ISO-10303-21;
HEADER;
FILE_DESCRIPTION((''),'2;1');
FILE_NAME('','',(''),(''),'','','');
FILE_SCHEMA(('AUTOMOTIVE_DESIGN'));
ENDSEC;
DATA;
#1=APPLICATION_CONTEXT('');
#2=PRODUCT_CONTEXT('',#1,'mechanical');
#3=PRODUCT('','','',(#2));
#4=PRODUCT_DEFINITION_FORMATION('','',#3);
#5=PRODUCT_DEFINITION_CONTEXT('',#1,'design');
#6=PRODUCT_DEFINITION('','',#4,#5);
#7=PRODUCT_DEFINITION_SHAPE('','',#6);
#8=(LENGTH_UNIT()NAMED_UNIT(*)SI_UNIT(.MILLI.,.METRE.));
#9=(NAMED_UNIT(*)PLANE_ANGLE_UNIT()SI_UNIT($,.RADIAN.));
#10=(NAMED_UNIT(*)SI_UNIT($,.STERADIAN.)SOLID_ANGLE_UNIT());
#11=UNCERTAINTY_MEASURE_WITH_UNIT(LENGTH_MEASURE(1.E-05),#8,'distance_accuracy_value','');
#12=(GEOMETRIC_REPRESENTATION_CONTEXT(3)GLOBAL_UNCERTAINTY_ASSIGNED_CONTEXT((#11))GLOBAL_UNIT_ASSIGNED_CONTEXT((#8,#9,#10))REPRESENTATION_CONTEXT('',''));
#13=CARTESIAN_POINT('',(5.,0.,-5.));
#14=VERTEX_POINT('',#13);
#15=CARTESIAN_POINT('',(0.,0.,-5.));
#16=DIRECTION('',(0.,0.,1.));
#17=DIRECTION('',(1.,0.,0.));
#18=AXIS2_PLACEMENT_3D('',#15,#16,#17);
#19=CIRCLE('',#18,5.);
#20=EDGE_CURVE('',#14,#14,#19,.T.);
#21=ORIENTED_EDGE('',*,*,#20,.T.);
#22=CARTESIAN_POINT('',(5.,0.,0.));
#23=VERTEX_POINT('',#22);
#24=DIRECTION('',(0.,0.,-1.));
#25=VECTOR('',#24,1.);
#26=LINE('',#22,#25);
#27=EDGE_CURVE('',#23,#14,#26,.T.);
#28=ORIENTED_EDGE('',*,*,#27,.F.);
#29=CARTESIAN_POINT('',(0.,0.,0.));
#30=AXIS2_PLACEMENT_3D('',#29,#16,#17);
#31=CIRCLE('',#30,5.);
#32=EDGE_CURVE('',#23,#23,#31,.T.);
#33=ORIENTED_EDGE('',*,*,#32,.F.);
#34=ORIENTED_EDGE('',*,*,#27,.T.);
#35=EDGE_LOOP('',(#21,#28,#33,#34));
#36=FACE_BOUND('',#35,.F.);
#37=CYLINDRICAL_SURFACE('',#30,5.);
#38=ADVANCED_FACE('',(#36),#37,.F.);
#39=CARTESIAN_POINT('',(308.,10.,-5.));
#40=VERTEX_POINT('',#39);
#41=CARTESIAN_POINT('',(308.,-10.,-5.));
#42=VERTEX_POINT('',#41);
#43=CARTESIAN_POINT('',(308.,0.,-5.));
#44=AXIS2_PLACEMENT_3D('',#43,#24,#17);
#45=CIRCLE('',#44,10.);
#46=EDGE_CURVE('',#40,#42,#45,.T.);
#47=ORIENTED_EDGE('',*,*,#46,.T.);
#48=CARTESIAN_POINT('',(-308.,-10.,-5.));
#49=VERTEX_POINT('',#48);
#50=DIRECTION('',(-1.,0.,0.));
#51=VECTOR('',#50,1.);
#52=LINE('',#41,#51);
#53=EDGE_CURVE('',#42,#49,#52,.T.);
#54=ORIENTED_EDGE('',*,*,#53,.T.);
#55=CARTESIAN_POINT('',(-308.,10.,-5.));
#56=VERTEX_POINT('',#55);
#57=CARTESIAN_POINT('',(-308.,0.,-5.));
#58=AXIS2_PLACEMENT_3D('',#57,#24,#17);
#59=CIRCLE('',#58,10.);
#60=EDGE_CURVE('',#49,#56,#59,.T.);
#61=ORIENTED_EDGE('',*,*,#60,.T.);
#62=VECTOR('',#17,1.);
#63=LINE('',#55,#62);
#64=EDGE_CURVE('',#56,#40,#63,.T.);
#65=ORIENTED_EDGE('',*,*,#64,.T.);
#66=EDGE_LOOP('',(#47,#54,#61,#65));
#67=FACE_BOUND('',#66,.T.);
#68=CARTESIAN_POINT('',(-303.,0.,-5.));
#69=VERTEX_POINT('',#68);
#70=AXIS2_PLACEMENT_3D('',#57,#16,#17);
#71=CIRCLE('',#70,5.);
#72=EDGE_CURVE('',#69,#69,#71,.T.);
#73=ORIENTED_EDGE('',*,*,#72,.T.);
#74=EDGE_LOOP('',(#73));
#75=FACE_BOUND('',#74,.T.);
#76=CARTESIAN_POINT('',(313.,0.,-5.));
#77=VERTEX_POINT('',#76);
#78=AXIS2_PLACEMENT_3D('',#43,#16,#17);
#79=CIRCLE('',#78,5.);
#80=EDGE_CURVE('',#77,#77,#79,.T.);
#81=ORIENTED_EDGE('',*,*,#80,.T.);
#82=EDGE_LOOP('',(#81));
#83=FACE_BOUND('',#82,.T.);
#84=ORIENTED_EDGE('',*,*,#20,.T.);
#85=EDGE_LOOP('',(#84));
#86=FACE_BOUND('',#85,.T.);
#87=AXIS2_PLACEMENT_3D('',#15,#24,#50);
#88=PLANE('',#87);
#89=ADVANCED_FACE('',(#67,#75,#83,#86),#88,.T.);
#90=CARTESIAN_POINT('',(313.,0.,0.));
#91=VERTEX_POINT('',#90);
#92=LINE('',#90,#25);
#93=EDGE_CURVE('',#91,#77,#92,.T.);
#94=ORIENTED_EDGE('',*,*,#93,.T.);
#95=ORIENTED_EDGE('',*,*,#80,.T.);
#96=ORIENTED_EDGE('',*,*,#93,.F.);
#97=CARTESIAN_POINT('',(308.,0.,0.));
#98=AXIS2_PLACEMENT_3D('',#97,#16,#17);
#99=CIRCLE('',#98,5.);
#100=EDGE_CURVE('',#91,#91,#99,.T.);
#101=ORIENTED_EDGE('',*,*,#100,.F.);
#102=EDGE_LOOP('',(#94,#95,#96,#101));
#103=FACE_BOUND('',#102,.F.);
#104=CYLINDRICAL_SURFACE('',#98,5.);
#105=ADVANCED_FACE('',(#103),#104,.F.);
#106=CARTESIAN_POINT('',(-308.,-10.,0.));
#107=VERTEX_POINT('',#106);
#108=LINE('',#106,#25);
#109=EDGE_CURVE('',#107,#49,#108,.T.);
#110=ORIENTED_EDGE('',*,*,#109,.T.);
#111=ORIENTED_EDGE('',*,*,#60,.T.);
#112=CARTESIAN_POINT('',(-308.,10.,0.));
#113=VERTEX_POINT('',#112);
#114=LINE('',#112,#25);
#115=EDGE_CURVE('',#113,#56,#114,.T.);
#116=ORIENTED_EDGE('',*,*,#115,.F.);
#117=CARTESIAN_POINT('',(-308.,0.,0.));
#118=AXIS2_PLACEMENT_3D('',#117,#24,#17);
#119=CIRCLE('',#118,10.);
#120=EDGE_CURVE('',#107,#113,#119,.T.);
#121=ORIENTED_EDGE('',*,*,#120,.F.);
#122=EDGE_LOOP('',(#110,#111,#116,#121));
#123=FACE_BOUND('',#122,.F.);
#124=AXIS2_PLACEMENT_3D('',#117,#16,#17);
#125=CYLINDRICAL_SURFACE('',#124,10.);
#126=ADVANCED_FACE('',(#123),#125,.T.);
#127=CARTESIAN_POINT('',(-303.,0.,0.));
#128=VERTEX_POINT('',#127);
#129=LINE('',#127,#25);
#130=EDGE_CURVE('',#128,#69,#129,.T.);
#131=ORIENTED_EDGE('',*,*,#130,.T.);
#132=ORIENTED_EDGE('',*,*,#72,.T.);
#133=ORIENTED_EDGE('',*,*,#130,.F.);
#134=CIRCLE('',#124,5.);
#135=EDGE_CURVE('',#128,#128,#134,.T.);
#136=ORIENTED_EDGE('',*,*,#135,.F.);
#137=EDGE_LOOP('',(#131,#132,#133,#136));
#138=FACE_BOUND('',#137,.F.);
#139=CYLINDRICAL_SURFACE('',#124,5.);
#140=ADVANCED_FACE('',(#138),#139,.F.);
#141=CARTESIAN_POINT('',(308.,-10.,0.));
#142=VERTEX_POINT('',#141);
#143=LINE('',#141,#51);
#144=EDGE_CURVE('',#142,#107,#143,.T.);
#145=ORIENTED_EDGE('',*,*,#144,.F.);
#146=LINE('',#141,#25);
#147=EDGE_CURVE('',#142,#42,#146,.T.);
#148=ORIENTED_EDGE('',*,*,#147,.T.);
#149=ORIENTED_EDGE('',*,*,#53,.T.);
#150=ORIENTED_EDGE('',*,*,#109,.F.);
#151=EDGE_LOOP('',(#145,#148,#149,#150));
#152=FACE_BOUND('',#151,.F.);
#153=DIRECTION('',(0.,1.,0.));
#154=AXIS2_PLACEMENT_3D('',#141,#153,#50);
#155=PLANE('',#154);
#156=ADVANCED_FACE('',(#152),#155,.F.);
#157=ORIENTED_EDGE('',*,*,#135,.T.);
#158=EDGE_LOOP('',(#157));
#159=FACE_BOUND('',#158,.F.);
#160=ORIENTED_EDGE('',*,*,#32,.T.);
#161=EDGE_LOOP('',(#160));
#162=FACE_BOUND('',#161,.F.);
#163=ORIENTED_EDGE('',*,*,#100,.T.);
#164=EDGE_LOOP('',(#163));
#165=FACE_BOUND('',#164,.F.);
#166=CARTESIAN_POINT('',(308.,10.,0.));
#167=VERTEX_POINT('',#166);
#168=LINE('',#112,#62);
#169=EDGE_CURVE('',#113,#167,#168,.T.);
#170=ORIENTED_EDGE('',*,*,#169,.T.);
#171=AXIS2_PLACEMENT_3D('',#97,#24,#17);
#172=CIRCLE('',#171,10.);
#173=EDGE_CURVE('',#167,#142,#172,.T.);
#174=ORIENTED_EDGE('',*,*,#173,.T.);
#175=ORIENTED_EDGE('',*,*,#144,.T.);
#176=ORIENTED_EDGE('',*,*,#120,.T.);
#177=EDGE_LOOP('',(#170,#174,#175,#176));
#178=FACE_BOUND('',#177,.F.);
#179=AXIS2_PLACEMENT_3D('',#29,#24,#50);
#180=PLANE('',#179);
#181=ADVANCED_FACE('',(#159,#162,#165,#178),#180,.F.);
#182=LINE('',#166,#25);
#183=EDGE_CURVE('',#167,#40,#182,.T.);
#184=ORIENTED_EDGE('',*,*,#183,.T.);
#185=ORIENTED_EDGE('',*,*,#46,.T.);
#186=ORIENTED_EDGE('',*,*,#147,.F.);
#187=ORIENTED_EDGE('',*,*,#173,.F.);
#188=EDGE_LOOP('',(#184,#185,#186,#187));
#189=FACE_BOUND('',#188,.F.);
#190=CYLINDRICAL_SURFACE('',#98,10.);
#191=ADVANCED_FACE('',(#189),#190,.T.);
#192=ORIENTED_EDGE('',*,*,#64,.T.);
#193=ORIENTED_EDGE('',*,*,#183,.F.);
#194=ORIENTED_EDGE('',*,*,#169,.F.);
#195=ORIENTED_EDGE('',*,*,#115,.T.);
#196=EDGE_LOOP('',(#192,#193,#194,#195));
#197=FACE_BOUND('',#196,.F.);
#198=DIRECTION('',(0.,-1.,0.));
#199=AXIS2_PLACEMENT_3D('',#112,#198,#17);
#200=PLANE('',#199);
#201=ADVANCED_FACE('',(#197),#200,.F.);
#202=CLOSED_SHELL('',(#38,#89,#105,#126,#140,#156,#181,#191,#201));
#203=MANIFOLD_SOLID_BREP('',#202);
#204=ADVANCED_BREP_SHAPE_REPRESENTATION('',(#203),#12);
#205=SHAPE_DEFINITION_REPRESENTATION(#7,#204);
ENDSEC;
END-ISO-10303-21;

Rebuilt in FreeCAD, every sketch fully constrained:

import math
import FreeCAD as App
import Part
import Sketcher

doc = App.newDocument("Part")
body = doc.addObject("PartDesign::Body", "Body")

sketch1 = body.newObject("Sketcher::SketchObject", "Sketch")
sketch1.AttachmentSupport = (doc.getObject("XY_Plane"), [""])
sketch1.MapMode = "FlatFace"
sketch1.addGeometry([
    Part.LineSegment(App.Vector(308, 10, 0), App.Vector(-308, 10, 0)),
    Part.ArcOfCircle(Part.Circle(App.Vector(-308, 0, 0), App.Vector(0, 0, 1), 10), math.radians(90), math.radians(270)),
    Part.LineSegment(App.Vector(-308, -10, 0), App.Vector(308, -10, 0)),
    Part.ArcOfCircle(Part.Circle(App.Vector(308, 0, 0), App.Vector(0, 0, 1), 10), math.radians(-90), math.radians(90)),
    Part.Circle(App.Vector(-308, 0, 0), App.Vector(0, 0, 1), 5),
    Part.Circle(App.Vector(0, 0, 0), App.Vector(0, 0, 1), 5),
    Part.Circle(App.Vector(308, 0, 0), App.Vector(0, 0, 1), 5),
], False)
sketch1.addConstraint([
    Sketcher.Constraint("Tangent", 0, 2, 1, 1),
    Sketcher.Constraint("Tangent", 1, 2, 2, 1),
    Sketcher.Constraint("Tangent", 2, 2, 3, 1),
    Sketcher.Constraint("Tangent", 3, 2, 0, 1),
    Sketcher.Constraint("Horizontal", 0),
    Sketcher.Constraint("Horizontal", 2),
    Sketcher.Constraint("Coincident", 5, 3, -1, 1),
    Sketcher.Constraint("Coincident", 4, 3, 1, 3),
    Sketcher.Constraint("Coincident", 6, 3, 3, 3),
    Sketcher.Constraint("Equal", 4, 5),
    Sketcher.Constraint("Equal", 5, 6),
    Sketcher.Constraint("Symmetric", 1, 3, 3, 3, -1, 1),
    Sketcher.Constraint("Diameter", 4, 10.0),
    Sketcher.Constraint("DistanceX", 1, 3, -1, 1, 308.0),
    Sketcher.Constraint("Radius", 1, 10.0),
])
pad1 = body.newObject("PartDesign::Pad", "Pad")
pad1.Profile = sketch1
pad1.Length = 5
pad1.Reversed = True

doc.recompute()
